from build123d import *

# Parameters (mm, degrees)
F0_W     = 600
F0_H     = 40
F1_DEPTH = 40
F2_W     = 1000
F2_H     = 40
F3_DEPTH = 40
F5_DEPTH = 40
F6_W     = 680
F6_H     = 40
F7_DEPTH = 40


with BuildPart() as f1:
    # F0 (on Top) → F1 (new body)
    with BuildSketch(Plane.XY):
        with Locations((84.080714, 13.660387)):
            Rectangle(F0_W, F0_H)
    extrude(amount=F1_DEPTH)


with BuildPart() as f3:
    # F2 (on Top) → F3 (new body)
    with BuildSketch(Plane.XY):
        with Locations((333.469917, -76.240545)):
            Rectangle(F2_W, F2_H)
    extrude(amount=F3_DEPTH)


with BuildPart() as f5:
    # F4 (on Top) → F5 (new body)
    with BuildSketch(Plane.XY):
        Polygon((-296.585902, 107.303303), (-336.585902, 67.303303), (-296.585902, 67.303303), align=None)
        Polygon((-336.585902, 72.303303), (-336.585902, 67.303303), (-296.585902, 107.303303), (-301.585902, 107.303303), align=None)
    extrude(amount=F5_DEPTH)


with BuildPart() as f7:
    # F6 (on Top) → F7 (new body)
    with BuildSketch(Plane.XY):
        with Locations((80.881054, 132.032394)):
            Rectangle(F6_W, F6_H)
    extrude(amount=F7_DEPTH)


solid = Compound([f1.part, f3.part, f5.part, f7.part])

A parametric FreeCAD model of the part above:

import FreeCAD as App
import Part
import Sketcher

V = App.Vector

doc = App.newDocument("Part")
params = doc.addObject("Spreadsheet::Sheet", "Params")
for row, (alias, value) in enumerate([
    ("sketch1_width", "600 mm"),
    ("sketch1_height", "40 mm"),
    ("pad1_length", "40 mm"),
    ("sketch2_width", "1000 mm"),
    ("sketch2_height", "40 mm"),
    ("pad2_length", "40 mm"),
    ("sketch3_width", "40 mm"),
    ("sketch3_width2", "5 mm"),
    ("pad3_length", "40 mm"),
    ("sketch4_width", "680 mm"),
    ("sketch4_height", "40 mm"),
    ("pad4_length", "40 mm"),
], start=1):
    params.set(f"A{row}", alias)
    params.set(f"B{row}", "=" + value)
    params.setAlias(f"B{row}", alias)

body = doc.addObject("PartDesign::Body", "Body")

sketch1 = doc.addObject("Sketcher::SketchObject", "Sketch")
body.addObject(sketch1)
sketch1.AttachmentSupport = (doc.XY_Plane, [""])
sketch1.MapMode = "FlatFace"
sketch1.addGeometry(Part.LineSegment(V(-215.919286, 33.660387, 0), V(-215.919286, -6.339613, 0)), False)
sketch1.addGeometry(Part.LineSegment(V(-215.919286, -6.339613, 0), V(384.080714, -6.339613, 0)), False)
sketch1.addGeometry(Part.LineSegment(V(384.080714, -6.339613, 0), V(384.080714, 33.660387, 0)), False)
sketch1.addGeometry(Part.LineSegment(V(384.080714, 33.660387, 0), V(-215.919286, 33.660387, 0)), False)
sketch1.addConstraint(Sketcher.Constraint("Coincident", 0, 2, 1, 1))
sketch1.addConstraint(Sketcher.Constraint("Coincident", 1, 2, 2, 1))
sketch1.addConstraint(Sketcher.Constraint("Coincident", 2, 2, 3, 1))
sketch1.addConstraint(Sketcher.Constraint("Coincident", 3, 2, 0, 1))
sketch1.addConstraint(Sketcher.Constraint("Vertical", 0))
sketch1.addConstraint(Sketcher.Constraint("Horizontal", 1))
sketch1.addConstraint(Sketcher.Constraint("Vertical", 2))
sketch1.addConstraint(Sketcher.Constraint("Horizontal", 3))
sketch1.addConstraint(Sketcher.Constraint("DistanceX", 1, 1, 1, 2, 600.0))
sketch1.addConstraint(Sketcher.Constraint("DistanceY", 0, 2, 0, 1, 40.0))
sketch1.addConstraint(Sketcher.Constraint("DistanceX", 0, 2, -1, 1, 215.919286))
sketch1.addConstraint(Sketcher.Constraint("DistanceY", 0, 2, -1, 1, 6.339613))
sketch1.setExpression("Constraints[8]", "Params.sketch1_width")
sketch1.setExpression("Constraints[9]", "Params.sketch1_height")
pad1 = doc.addObject("PartDesign::Pad", "Pad")
body.addObject(pad1)
pad1.Profile = sketch1
pad1.setExpression("Length", "Params.pad1_length")
body2 = doc.addObject("PartDesign::Body", "Body001")

sketch2 = doc.addObject("Sketcher::SketchObject", "Sketch001")
body2.addObject(sketch2)
sketch2.AttachmentSupport = (doc.getObject("XY_Plane001"), [""])
sketch2.MapMode = "FlatFace"
sketch2.addGeometry(Part.LineSegment(V(-166.530083, -56.240545, 0), V(-166.530083, -96.240545, 0)), False)
sketch2.addGeometry(Part.LineSegment(V(-166.530083, -96.240545, 0), V(833.469917, -96.240545, 0)), False)
sketch2.addGeometry(Part.LineSegment(V(833.469917, -96.240545, 0), V(833.469917, -56.240545, 0)), False)
sketch2.addGeometry(Part.LineSegment(V(833.469917, -56.240545, 0), V(-166.530083, -56.240545, 0)), False)
sketch2.addConstraint(Sketcher.Constraint("Coincident", 0, 2, 1, 1))
sketch2.addConstraint(Sketcher.Constraint("Coincident", 1, 2, 2, 1))
sketch2.addConstraint(Sketcher.Constraint("Coincident", 2, 2, 3, 1))
sketch2.addConstraint(Sketcher.Constraint("Coincident", 3, 2, 0, 1))
sketch2.addConstraint(Sketcher.Constraint("Vertical", 0))
sketch2.addConstraint(Sketcher.Constraint("Horizontal", 1))
sketch2.addConstraint(Sketcher.Constraint("Vertical", 2))
sketch2.addConstraint(Sketcher.Constraint("Horizontal", 3))
sketch2.addConstraint(Sketcher.Constraint("DistanceX", 1, 1, 1, 2, 1000.0))
sketch2.addConstraint(Sketcher.Constraint("DistanceY", 0, 2, 0, 1, 40.0))
sketch2.addConstraint(Sketcher.Constraint("DistanceX", 0, 2, -1, 1, 166.530083))
sketch2.addConstraint(Sketcher.Constraint("DistanceY", 0, 2, -1, 1, 96.240545))
sketch2.setExpression("Constraints[8]", "Params.sketch2_width")
sketch2.setExpression("Constraints[9]", "Params.sketch2_height")
pad2 = doc.addObject("PartDesign::Pad", "Pad001")
body2.addObject(pad2)
pad2.Profile = sketch2
pad2.setExpression("Length", "Params.pad2_length")
body3 = doc.addObject("PartDesign::Body", "Body002")

sketch3 = doc.addObject("Sketcher::SketchObject", "Sketch002")
body3.addObject(sketch3)
sketch3.AttachmentSupport = (doc.getObject("XY_Plane002"), [""])
sketch3.MapMode = "FlatFace"
sketch3.addGeometry(Part.LineSegment(V(-336.585902, 67.303303, 0), V(-296.585902, 67.303303, 0)), False)
sketch3.addGeometry(Part.LineSegment(V(-296.585902, 67.303303, 0), V(-296.585902, 107.303303, 0)), False)
sketch3.addGeometry(Part.LineSegment(V(-296.585902, 107.303303, 0), V(-301.585902, 107.303303, 0)), False)
sketch3.addGeometry(Part.LineSegment(V(-301.585902, 107.303303, 0), V(-336.585902, 72.303303, 0)), False)
sketch3.addGeometry(Part.LineSegment(V(-336.585902, 72.303303, 0), V(-336.585902, 67.303303, 0)), False)
sketch3.addConstraint(Sketcher.Constraint("Coincident", 0, 2, 1, 1))
sketch3.addConstraint(Sketcher.Constraint("Coincident", 1, 2, 2, 1))
sketch3.addConstraint(Sketcher.Constraint("Coincident", 2, 2, 3, 1))
sketch3.addConstraint(Sketcher.Constraint("Coincident", 3, 2, 4, 1))
sketch3.addConstraint(Sketcher.Constraint("Coincident", 4, 2, 0, 1))
sketch3.addConstraint(Sketcher.Constraint("Horizontal", 0))
sketch3.addConstraint(Sketcher.Constraint("Vertical", 1))
sketch3.addConstraint(Sketcher.Constraint("Horizontal", 2))
sketch3.addConstraint(Sketcher.Constraint("Vertical", 4))
sketch3.addConstraint(Sketcher.Constraint("Equal", 0, 1))
sketch3.addConstraint(Sketcher.Constraint("Equal", 2, 4))
sketch3.addConstraint(Sketcher.Constraint("DistanceX", 0, 1, 0, 2, 40.0))
sketch3.addConstraint(Sketcher.Constraint("DistanceX", 2, 2, 2, 1, 5.0))
sketch3.addConstraint(Sketcher.Constraint("DistanceX", 0, 2, -1, 1, 296.585902))
sketch3.addConstraint(Sketcher.Constraint("DistanceY", -1, 1, 0, 2, 67.303303))
sketch3.setExpression("Constraints[11]", "Params.sketch3_width")
sketch3.setExpression("Constraints[12]", "Params.sketch3_width2")
pad3 = doc.addObject("PartDesign::Pad", "Pad002")
body3.addObject(pad3)
pad3.Profile = sketch3
pad3.setExpression("Length", "Params.pad3_length")
body4 = doc.addObject("PartDesign::Body", "Body003")

sketch4 = doc.addObject("Sketcher::SketchObject", "Sketch003")
body4.addObject(sketch4)
sketch4.AttachmentSupport = (doc.getObject("XY_Plane003"), [""])
sketch4.MapMode = "FlatFace"
sketch4.addGeometry(Part.LineSegment(V(-259.118946, 152.032394, 0), V(-259.118946, 112.032394, 0)), False)
sketch4.addGeometry(Part.LineSegment(V(-259.118946, 112.032394, 0), V(420.881054, 112.032394, 0)), False)
sketch4.addGeometry(Part.LineSegment(V(420.881054, 112.032394, 0), V(420.881054, 152.032394, 0)), False)
sketch4.addGeometry(Part.LineSegment(V(420.881054, 152.032394, 0), V(-259.118946, 152.032394, 0)), False)
sketch4.addConstraint(Sketcher.Constraint("Coincident", 0, 2, 1, 1))
sketch4.addConstraint(Sketcher.Constraint("Coincident", 1, 2, 2, 1))
sketch4.addConstraint(Sketcher.Constraint("Coincident", 2, 2, 3, 1))
sketch4.addConstraint(Sketcher.Constraint("Coincident", 3, 2, 0, 1))
sketch4.addConstraint(Sketcher.Constraint("Vertical", 0))
sketch4.addConstraint(Sketcher.Constraint("Horizontal", 1))
sketch4.addConstraint(Sketcher.Constraint("Vertical", 2))
sketch4.addConstraint(Sketcher.Constraint("Horizontal", 3))
sketch4.addConstraint(Sketcher.Constraint("DistanceX", 1, 1, 1, 2, 680.0))
sketch4.addConstraint(Sketcher.Constraint("DistanceY", 0, 2, 0, 1, 40.0))
sketch4.addConstraint(Sketcher.Constraint("DistanceX", 0, 2, -1, 1, 259.118946))
sketch4.addConstraint(Sketcher.Constraint("DistanceY", -1, 1, 0, 2, 112.032394))
sketch4.setExpression("Constraints[8]", "Params.sketch4_width")
sketch4.setExpression("Constraints[9]", "Params.sketch4_height")
pad4 = doc.addObject("PartDesign::Pad", "Pad003")
body4.addObject(pad4)
pad4.Profile = sketch4
pad4.setExpression("Length", "Params.pad4_length")

doc.recompute()
